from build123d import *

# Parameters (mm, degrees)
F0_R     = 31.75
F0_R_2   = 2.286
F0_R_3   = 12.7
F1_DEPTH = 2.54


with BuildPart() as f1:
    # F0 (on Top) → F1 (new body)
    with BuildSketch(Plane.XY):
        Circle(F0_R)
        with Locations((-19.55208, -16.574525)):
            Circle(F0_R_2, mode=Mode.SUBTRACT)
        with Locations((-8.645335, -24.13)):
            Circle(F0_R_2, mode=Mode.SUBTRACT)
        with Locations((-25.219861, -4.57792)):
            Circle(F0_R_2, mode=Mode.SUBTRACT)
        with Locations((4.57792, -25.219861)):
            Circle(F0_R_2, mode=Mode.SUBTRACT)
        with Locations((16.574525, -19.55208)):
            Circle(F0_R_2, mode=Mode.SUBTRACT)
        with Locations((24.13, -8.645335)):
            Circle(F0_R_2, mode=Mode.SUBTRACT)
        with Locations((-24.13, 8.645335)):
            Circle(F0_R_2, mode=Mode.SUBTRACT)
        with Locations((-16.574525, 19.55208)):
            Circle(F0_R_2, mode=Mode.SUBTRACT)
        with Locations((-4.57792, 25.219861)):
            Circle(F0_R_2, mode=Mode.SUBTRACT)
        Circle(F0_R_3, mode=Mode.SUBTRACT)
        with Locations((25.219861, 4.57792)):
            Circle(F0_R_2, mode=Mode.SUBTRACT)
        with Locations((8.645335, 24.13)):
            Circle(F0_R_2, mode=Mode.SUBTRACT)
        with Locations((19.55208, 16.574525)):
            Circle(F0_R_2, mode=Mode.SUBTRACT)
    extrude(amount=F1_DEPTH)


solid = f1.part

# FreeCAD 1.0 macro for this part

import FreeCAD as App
import Part
import Sketcher

V = App.Vector
Q = App.Units.Quantity

doc = App.newDocument("Part")
params = doc.addObject("Spreadsheet::Sheet", "Params")
for row, (alias, value) in enumerate([
    ("sketch1_diameter", "1 in"),
    ("sketch1_diameter2", "2.5 in"),
    ("sketch1_diameter3", "0.18 in"),
    ("pad1_length", "0.1 in"),
], start=1):
    params.set(f"A{row}", alias)
    params.set(f"B{row}", "=" + value)
    params.setAlias(f"B{row}", alias)

body = doc.addObject("PartDesign::Body", "Body")

# Sketch on XY plane
sketch1 = doc.addObject("Sketcher::SketchObject", "Sketch")
body.addObject(sketch1)
sketch1.AttachmentSupport = (doc.XY_Plane, [""])
sketch1.MapMode = "FlatFace"
sketch1.addGeometry([
    Part.Circle(V(0, 0, 0), V(0, 0, 1), 31.8),  # 0
    Part.Circle(V(-19.6, -16.6, 0), V(0, 0, 1), 2.3),  # 1
    Part.Circle(V(-8.6, -24.1, 0), V(0, 0, 1), 2.3),  # 2
    Part.Circle(V(-25.2, -4.6, 0), V(0, 0, 1), 2.3),  # 3
    Part.Circle(V(4.6, -25.2, 0), V(0, 0, 1), 2.3),  # 4
    Part.Circle(V(16.6, -19.6, 0), V(0, 0, 1), 2.3),  # 5
    Part.Circle(V(24.1, -8.6, 0), V(0, 0, 1), 2.3),  # 6
    Part.Circle(V(-24.1, 8.6, 0), V(0, 0, 1), 2.3),  # 7
    Part.Circle(V(-16.6, 19.6, 0), V(0, 0, 1), 2.3),  # 8
    Part.Circle(V(-4.6, 25.2, 0), V(0, 0, 1), 2.3),  # 9
    Part.Circle(V(0, 0, 0), V(0, 0, 1), 12.7),  # 10
    Part.Circle(V(25.2, 4.6, 0), V(0, 0, 1), 2.3),  # 11
    Part.Circle(V(8.6, 24.1, 0), V(0, 0, 1), 2.3),  # 12
    Part.Circle(V(19.6, 16.6, 0), V(0, 0, 1), 2.3),  # 13
], False)
sketch1.addConstraint([
    Sketcher.Constraint("Coincident", 0, 3, -1, 1),
    Sketcher.Constraint("Coincident", 10, 3, -1, 1),
    Sketcher.Constraint("Equal", 1, 2),
    Sketcher.Constraint("Equal", 2, 3),
    Sketcher.Constraint("Equal", 3, 4),
    Sketcher.Constraint("Equal", 4, 5),
    Sketcher.Constraint("Equal", 5, 6),
    Sketcher.Constraint("Equal", 6, 7),
    Sketcher.Constraint("Equal", 7, 8),
    Sketcher.Constraint("Equal", 8, 9),
    Sketcher.Constraint("Equal", 9, 11),
    Sketcher.Constraint("Equal", 11, 12),
    Sketcher.Constraint("Equal", 12, 13),
    Sketcher.Constraint("Symmetric", 6, 3, 7, 3, -1, 1),
    Sketcher.Constraint("Symmetric", 5, 3, 8, 3, -1, 1),
    Sketcher.Constraint("Symmetric", 4, 3, 9, 3, -1, 1),
    Sketcher.Constraint("Symmetric", 3, 3, 11, 3, -1, 1),
    Sketcher.Constraint("Symmetric", 2, 3, 12, 3, -1, 1),
    Sketcher.Constraint("Symmetric", 1, 3, 13, 3, -1, 1),
    Sketcher.Constraint("Diameter", 10, Q("1 in")),
    Sketcher.Constraint("Diameter", 0, Q("2.5 in")),
    Sketcher.Constraint("Diameter", 1, Q("0.18 in")),
    Sketcher.Constraint("DistanceY", 2, 3, -1, 1, Q("0.95 in")),
    Sketcher.Constraint("DistanceX", -1, 1, 6, 3, Q("0.95 in")),
    Sketcher.Constraint("DistanceX", 1, 3, 4, 3, Q("0.95 in")),
    Sketcher.Constraint("DistanceY", 3, 3, 8, 3, Q("0.95 in")),
    Sketcher.Constraint("DistanceX", 1, 3, -1, 1, 19.55208),
    Sketcher.Constraint("DistanceX", 3, 3, -1, 1, 25.219861),
    Sketcher.Constraint("DistanceY", 3, 3, -1, 1, 4.57792),
    Sketcher.Constraint("DistanceY", 4, 3, -1, 1, 25.219861),
    Sketcher.Constraint("DistanceX", 2, 3, 5, 3, 25.21986),
    Sketcher.Constraint("DistanceY", 1, 3, 6, 3, 7.92919),
    Sketcher.Constraint("DistanceY", 1, 3, 7, 3, 25.21986),
    Sketcher.Constraint("DistanceX", 8, 3, 2, 3, 7.92919),
])
sketch1.setExpression("Constraints[19]", "Params.sketch1_diameter")
sketch1.setExpression("Constraints[20]", "Params.sketch1_diameter2")
sketch1.setExpression("Constraints[21]", "Params.sketch1_diameter3")
pad1 = doc.addObject("PartDesign::Pad", "Pad")
body.addObject(pad1)
pad1.Profile = sketch1
pad1.setExpression("Length", "Params.pad1_length")

doc.recompute()
